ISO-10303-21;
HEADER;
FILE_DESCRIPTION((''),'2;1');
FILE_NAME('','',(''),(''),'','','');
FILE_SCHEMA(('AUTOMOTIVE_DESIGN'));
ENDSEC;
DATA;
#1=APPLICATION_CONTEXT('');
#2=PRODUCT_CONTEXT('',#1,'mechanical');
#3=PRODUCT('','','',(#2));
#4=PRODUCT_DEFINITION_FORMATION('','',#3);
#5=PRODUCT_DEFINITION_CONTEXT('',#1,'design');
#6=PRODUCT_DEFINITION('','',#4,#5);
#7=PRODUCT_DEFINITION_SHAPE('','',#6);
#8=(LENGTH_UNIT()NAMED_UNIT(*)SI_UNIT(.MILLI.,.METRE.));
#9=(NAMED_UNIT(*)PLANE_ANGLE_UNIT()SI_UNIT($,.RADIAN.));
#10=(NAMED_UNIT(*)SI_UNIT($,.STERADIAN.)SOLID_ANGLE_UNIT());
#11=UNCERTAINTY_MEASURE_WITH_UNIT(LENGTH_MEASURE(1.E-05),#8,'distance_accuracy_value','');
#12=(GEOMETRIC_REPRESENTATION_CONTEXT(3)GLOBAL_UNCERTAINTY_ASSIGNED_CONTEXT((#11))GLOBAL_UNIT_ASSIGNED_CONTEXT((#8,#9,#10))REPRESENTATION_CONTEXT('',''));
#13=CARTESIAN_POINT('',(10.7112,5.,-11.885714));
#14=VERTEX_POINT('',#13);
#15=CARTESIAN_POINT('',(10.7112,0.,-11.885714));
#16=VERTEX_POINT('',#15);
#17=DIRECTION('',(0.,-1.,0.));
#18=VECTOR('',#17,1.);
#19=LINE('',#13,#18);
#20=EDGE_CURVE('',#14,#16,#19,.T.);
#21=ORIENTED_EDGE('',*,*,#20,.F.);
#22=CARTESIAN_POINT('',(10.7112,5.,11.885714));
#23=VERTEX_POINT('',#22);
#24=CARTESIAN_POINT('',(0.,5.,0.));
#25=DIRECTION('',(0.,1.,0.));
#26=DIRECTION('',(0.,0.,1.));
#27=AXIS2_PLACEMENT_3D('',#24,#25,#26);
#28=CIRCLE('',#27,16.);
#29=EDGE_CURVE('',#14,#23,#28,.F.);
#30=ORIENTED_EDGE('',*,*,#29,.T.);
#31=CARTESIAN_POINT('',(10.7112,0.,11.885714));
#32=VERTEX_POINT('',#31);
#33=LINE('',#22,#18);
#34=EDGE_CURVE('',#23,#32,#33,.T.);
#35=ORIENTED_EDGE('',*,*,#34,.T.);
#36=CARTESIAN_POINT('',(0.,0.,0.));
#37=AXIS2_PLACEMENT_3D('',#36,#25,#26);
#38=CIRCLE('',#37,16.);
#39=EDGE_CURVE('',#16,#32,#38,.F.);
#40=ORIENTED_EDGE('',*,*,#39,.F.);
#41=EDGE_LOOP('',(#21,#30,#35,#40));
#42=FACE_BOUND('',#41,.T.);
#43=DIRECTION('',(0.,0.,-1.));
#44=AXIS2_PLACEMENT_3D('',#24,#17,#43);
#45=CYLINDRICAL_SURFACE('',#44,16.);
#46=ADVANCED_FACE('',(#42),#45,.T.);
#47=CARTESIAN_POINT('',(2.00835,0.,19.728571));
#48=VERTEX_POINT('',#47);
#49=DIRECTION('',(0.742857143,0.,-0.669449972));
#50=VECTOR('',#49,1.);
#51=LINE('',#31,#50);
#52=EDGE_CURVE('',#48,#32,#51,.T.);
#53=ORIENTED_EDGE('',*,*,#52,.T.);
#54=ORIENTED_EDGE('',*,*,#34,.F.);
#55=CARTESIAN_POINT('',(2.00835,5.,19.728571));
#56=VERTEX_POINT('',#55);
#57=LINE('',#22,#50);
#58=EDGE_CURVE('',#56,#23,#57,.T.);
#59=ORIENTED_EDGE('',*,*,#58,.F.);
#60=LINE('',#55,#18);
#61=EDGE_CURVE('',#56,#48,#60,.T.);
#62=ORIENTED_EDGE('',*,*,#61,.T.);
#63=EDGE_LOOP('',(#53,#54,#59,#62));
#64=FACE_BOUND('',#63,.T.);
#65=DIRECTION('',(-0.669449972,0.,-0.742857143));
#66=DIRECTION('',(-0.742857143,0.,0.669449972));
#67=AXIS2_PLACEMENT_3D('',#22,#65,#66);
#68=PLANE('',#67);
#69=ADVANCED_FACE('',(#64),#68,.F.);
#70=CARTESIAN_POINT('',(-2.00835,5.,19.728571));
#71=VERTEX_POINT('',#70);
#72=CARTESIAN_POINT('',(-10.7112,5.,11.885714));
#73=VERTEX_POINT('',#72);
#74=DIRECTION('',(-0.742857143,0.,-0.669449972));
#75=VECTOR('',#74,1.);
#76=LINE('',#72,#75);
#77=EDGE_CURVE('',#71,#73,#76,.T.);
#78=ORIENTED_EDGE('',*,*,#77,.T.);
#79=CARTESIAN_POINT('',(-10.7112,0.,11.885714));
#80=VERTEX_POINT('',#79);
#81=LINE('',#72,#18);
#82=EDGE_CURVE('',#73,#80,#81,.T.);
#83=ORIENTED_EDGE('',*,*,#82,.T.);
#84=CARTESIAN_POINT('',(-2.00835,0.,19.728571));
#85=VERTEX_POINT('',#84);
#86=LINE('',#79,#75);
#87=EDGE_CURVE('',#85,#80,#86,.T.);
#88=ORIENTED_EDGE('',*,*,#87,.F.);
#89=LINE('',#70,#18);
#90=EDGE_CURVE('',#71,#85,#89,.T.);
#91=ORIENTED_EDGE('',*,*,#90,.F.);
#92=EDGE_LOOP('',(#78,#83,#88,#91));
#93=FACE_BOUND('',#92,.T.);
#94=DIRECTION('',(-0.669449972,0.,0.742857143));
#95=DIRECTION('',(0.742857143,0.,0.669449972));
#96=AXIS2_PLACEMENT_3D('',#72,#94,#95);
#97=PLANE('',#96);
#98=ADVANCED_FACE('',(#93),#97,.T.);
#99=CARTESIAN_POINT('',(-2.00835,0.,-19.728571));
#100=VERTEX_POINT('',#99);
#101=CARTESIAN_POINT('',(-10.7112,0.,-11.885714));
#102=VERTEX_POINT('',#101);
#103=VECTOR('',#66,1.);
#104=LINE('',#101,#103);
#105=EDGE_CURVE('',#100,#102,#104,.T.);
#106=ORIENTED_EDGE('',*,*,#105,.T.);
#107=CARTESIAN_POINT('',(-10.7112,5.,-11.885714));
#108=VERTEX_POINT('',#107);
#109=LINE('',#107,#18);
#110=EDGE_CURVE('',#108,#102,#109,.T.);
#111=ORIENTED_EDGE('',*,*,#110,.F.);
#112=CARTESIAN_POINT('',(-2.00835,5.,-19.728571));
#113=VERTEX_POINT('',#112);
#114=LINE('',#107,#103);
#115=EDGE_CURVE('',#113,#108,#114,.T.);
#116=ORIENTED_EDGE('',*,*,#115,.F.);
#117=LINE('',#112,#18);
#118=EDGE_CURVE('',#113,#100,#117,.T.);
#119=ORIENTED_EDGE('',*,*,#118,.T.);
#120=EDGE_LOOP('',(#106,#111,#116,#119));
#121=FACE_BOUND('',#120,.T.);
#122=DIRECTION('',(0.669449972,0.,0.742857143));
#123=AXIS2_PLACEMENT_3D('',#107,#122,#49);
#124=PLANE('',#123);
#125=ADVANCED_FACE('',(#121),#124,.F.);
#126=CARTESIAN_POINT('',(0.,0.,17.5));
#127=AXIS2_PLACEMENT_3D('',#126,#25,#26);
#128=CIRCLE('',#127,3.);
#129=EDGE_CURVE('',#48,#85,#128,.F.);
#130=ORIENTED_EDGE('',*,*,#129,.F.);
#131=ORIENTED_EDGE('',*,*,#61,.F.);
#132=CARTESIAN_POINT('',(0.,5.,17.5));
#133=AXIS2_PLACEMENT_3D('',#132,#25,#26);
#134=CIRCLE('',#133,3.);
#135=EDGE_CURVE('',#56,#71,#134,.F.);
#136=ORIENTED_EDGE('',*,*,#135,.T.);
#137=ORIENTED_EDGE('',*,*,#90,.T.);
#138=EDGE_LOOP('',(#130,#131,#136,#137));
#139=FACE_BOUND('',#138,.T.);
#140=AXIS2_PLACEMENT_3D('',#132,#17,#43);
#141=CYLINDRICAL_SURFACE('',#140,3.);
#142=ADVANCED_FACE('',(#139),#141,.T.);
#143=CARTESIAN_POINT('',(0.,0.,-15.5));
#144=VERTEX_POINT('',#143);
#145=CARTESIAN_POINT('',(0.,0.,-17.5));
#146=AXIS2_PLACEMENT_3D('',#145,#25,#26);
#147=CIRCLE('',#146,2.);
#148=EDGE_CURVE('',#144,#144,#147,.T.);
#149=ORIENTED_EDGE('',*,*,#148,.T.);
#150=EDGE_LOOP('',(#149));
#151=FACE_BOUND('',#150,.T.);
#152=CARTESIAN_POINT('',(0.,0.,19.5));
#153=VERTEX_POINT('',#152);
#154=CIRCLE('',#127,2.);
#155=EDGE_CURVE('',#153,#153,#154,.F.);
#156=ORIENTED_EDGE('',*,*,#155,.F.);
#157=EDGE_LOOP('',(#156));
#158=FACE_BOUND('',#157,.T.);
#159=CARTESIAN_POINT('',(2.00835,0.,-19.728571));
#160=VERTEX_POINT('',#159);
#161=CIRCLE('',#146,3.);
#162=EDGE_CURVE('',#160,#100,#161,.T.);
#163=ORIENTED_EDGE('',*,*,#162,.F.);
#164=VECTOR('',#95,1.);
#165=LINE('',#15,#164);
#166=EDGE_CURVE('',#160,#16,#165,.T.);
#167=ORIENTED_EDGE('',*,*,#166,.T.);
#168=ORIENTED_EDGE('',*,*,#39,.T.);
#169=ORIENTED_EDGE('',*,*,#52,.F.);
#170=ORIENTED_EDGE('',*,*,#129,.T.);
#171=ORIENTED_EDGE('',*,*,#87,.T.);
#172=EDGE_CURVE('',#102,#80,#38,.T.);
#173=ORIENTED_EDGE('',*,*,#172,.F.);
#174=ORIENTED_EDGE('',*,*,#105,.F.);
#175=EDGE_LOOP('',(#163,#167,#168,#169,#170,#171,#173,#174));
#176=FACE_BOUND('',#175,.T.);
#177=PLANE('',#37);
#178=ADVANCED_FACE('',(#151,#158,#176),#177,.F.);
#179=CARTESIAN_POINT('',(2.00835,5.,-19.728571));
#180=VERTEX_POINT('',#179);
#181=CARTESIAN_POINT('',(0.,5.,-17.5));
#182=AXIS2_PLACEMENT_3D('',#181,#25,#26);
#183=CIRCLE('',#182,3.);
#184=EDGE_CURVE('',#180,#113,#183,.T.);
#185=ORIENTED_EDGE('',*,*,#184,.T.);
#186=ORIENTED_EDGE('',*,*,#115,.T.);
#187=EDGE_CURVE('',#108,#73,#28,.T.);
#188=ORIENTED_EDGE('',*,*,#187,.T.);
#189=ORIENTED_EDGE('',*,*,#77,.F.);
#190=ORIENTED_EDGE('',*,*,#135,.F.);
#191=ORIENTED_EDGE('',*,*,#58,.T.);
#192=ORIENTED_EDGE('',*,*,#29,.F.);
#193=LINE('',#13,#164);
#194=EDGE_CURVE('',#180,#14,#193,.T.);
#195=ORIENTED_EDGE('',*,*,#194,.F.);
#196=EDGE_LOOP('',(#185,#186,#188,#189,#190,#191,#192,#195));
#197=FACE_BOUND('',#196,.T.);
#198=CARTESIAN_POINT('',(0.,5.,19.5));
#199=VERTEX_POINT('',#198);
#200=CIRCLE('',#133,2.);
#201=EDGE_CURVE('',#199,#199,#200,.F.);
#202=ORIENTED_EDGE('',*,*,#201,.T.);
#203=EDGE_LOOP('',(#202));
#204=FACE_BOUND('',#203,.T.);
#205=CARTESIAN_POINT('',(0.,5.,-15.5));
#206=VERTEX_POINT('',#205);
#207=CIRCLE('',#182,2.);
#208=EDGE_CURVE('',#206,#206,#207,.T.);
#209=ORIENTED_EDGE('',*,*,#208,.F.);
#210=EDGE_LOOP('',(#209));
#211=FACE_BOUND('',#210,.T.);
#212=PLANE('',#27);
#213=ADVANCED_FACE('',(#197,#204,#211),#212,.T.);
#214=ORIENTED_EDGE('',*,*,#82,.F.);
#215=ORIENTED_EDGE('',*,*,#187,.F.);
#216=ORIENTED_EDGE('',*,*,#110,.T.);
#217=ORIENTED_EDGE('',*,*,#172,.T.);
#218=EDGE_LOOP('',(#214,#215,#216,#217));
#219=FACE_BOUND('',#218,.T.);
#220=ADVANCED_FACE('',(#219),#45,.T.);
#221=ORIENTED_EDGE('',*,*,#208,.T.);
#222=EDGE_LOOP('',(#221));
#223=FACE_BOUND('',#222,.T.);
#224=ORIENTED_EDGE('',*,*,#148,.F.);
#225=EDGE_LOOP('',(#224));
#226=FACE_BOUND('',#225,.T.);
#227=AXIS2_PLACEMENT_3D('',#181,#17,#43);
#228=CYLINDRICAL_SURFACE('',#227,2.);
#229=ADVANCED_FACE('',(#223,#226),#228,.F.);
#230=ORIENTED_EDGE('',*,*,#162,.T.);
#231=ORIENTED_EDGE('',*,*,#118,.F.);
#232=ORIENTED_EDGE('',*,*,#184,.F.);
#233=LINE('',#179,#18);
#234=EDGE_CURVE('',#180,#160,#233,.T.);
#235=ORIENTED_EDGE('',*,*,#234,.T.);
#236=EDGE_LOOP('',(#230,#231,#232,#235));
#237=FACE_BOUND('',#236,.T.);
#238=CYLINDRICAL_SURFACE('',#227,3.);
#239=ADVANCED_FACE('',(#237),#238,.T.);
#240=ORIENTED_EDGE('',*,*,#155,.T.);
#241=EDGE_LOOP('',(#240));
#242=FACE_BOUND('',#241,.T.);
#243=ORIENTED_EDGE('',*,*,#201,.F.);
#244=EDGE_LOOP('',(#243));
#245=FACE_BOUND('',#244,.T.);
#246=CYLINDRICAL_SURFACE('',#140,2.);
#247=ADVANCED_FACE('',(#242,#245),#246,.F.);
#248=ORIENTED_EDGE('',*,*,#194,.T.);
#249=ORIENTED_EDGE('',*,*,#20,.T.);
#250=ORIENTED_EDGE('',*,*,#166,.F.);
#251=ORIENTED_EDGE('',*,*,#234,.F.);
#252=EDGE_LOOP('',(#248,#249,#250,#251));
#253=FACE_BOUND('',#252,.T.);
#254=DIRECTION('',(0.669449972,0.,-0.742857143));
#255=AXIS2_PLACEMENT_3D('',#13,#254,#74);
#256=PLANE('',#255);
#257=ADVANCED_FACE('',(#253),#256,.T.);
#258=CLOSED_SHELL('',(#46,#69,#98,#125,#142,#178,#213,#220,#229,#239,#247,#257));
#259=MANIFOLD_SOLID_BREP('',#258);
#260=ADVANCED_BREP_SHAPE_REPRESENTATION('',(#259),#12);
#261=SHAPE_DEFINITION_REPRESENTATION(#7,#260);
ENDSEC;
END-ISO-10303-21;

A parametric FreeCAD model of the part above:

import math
import FreeCAD as App
import Part
import Sketcher

V = App.Vector

doc = App.newDocument("Part")
params = doc.addObject("Spreadsheet::Sheet", "Params")
for row, (alias, value) in enumerate([
    ("sketch1_diameter", "4 mm"),
    ("sketch1_radius", "3 mm"),
    ("sketch1_radius2", "16 mm"),
    ("pad1_length", "5 mm"),
], start=1):
    params.set(f"A{row}", alias)
    params.set(f"B{row}", "=" + value)
    params.setAlias(f"B{row}", alias)

body = doc.addObject("PartDesign::Body", "Body")

# Sketch on XZ plane
sketch1 = body.newObject("Sketcher::SketchObject", "Sketch")
sketch1.AttachmentSupport = (doc.getObject("XZ_Plane"), [""])
sketch1.MapMode = "FlatFace"
sketch1.addGeometry(Part.ArcOfCircle(Part.Circle(V(0, 17.5, 0), V(0, 0, 1), 3), math.radians(48), math.radians(132)), False)
sketch1.addGeometry(Part.LineSegment(V(2, 19.7, 0), V(10.7, 11.9, 0)), False)
sketch1.addGeometry(Part.ArcOfCircle(Part.Circle(V(0, 0, 0), V(0, 0, 1), 16), math.radians(-48), math.radians(48)), False)
sketch1.addGeometry(Part.LineSegment(V(10.7, -11.9, 0), V(2, -19.7, 0)), False)
sketch1.addGeometry(Part.ArcOfCircle(Part.Circle(V(0, -17.5, 0), V(0, 0, 1), 3), math.radians(-132), math.radians(-48)), False)
sketch1.addGeometry(Part.LineSegment(V(-2, -19.7, 0), V(-10.7, -11.9, 0)), False)
sketch1.addGeometry(Part.ArcOfCircle(Part.Circle(V(0, 0, 0), V(0, 0, 1), 16), math.radians(132), math.radians(228)), False)
sketch1.addGeometry(Part.LineSegment(V(-10.7, 11.9, 0), V(-2, 19.7, 0)), False)
sketch1.addGeometry(Part.Circle(V(0, 17.5, 0), V(0, 0, 1), 2), False)
sketch1.addGeometry(Part.Circle(V(0, -17.5, 0), V(0, 0, 1), 2), False)
sketch1.addConstraint(Sketcher.Constraint("Tangent", 0, 1, 1, 1))
sketch1.addConstraint(Sketcher.Constraint("Tangent", 1, 2, 2, 2))
sketch1.addConstraint(Sketcher.Constraint("Tangent", 2, 1, 3, 1))
sketch1.addConstraint(Sketcher.Constraint("Tangent", 3, 2, 4, 2))
sketch1.addConstraint(Sketcher.Constraint("Tangent", 4, 1, 5, 1))
sketch1.addConstraint(Sketcher.Constraint("Tangent", 5, 2, 6, 2))
sketch1.addConstraint(Sketcher.Constraint("Tangent", 6, 1, 7, 1))
sketch1.addConstraint(Sketcher.Constraint("Tangent", 7, 2, 0, 2))
sketch1.addConstraint(Sketcher.Constraint("Coincident", 2, 3, -1, 1))
sketch1.addConstraint(Sketcher.Constraint("Coincident", 6, 3, -1, 1))
sketch1.addConstraint(Sketcher.Constraint("Coincident", 8, 3, 0, 3))
sketch1.addConstraint(Sketcher.Constraint("Coincident", 9, 3, 4, 3))
sketch1.addConstraint(Sketcher.Constraint("Equal", 0, 4))
sketch1.addConstraint(Sketcher.Constraint("Equal", 2, 6))
sketch1.addConstraint(Sketcher.Constraint("Equal", 8, 9))
sketch1.addConstraint(Sketcher.Constraint("Symmetric", 0, 3, 4, 3, -1, 1))
sketch1.addConstraint(Sketcher.Constraint("PointOnObject", 0, 3, -2))
sketch1.addConstraint(Sketcher.Constraint("Diameter", 8, 4.0))
sketch1.addConstraint(Sketcher.Constraint("Radius", 0, 3.0))
sketch1.addConstraint(Sketcher.Constraint("Radius", 2, 16.0))
sketch1.addConstraint(Sketcher.Constraint("DistanceY", 4, 3, 0, 3, 35.0))
sketch1.setExpression("Constraints[17]", "Params.sketch1_diameter")
sketch1.setExpression("Constraints[18]", "Params.sketch1_radius")
sketch1.setExpression("Constraints[19]", "Params.sketch1_radius2")
pad1 = body.newObject("PartDesign::Pad", "Pad")
pad1.Profile = sketch1
pad1.setExpression("Length", "Params.pad1_length")
pad1.Reversed = True

doc.recompute()
